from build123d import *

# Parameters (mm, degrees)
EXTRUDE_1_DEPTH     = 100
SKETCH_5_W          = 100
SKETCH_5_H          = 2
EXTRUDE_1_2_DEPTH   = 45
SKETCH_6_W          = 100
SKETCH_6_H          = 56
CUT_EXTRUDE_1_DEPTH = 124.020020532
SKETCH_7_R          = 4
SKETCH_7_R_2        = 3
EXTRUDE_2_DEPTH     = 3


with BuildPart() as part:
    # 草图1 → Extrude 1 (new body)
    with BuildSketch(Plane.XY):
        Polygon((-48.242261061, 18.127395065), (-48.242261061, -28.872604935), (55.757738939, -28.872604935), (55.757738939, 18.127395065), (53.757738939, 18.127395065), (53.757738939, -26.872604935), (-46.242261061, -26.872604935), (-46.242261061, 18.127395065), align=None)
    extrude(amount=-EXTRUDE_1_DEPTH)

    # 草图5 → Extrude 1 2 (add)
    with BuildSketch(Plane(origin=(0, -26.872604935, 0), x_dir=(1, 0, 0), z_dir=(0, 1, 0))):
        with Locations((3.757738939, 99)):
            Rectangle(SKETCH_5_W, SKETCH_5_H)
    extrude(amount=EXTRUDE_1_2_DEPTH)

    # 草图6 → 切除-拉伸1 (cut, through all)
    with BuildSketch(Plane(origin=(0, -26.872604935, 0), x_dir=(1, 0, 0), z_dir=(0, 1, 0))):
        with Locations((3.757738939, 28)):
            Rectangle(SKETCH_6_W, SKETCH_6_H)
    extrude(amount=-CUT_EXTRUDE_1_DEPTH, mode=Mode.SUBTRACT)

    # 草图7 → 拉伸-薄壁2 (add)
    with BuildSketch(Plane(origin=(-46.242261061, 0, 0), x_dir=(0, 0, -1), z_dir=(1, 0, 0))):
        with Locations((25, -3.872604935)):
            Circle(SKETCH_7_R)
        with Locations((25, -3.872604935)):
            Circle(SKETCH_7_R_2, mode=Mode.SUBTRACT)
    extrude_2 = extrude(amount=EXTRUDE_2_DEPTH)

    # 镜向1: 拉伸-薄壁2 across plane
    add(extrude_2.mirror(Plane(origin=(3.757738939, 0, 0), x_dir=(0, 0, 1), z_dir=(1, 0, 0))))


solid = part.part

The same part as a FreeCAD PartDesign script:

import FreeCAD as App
import Part
import Sketcher

V = App.Vector
Q = App.Units.Quantity

doc = App.newDocument("Part")
body = doc.addObject("PartDesign::Body", "Body")

# Sketch on XY plane
sketch1 = body.newObject("Sketcher::SketchObject", "Sketch")
sketch1.AttachmentSupport = (doc.getObject("XY_Plane"), [""])
sketch1.MapMode = "FlatFace"
sketch1.addGeometry([
    Part.LineSegment(V(-48.2, 18.1, 0), V(-48.2, -28.9, 0)),  # 0
    Part.LineSegment(V(-48.2, -28.9, 0), V(55.8, -28.9, 0)),  # 1
    Part.LineSegment(V(55.8, -28.9, 0), V(55.8, 18.1, 0)),  # 2
    Part.LineSegment(V(55.8, 18.1, 0), V(53.8, 18.1, 0)),  # 3
    Part.LineSegment(V(53.8, 18.1, 0), V(53.8, -26.9, 0)),  # 4
    Part.LineSegment(V(53.8, -26.9, 0), V(-46.2, -26.9, 0)),  # 5
    Part.LineSegment(V(-46.2, -26.9, 0), V(-46.2, 18.1, 0)),  # 6
    Part.LineSegment(V(-46.2, 18.1, 0), V(-48.2, 18.1, 0)),  # 7
], False)
sketch1.addConstraint([
    Sketcher.Constraint("Coincident", 0, 2, 1, 1),
    Sketcher.Constraint("Coincident", 1, 2, 2, 1),
    Sketcher.Constraint("Coincident", 2, 2, 3, 1),
    Sketcher.Constraint("Coincident", 3, 2, 4, 1),
    Sketcher.Constraint("Coincident", 4, 2, 5, 1),
    Sketcher.Constraint("Coincident", 5, 2, 6, 1),
    Sketcher.Constraint("Coincident", 6, 2, 7, 1),
    Sketcher.Constraint("Coincident", 7, 2, 0, 1),
    Sketcher.Constraint("Vertical", 0),
    Sketcher.Constraint("Horizontal", 1),
    Sketcher.Constraint("Vertical", 2),
    Sketcher.Constraint("Horizontal", 3),
    Sketcher.Constraint("Vertical", 4),
    Sketcher.Constraint("Horizontal", 5),
    Sketcher.Constraint("Vertical", 6),
    Sketcher.Constraint("Horizontal", 7),
    Sketcher.Constraint("Horizontal", 3, 2, 6, 2),
    Sketcher.Constraint("Equal", 3, 7),
    Sketcher.Constraint("DistanceX", 1, 1, 1, 2, Q("104 mm")),
    Sketcher.Constraint("DistanceX", 3, 2, 3, 1, Q("2 mm")),
    Sketcher.Constraint("DistanceY", 0, 2, 0, 1, Q("47 mm")),
    Sketcher.Constraint("DistanceY", 4, 2, 4, 1, Q("45 mm")),
    Sketcher.Constraint("DistanceX", 0, 2, -1, 1, Q("48.242261 mm")),
    Sketcher.Constraint("DistanceY", 0, 2, -1, 1, Q("28.872605 mm")),
])
pad1 = body.newObject("PartDesign::Pad", "Pad")
pad1.Profile = sketch1
pad1.Length = 100
pad1.Reversed = True

# Sketch on XZ plane
sketch2 = body.newObject("Sketcher::SketchObject", "Sketch001")
sketch2.AttachmentSupport = (doc.getObject("XZ_Plane"), [""])
sketch2.MapMode = "FlatFace"
sketch2.AttachmentOffset = App.Placement(V(0, 0, 26.872605), App.Rotation())
sketch2.addGeometry([
    Part.LineSegment(V(-46.2, -100, 0), V(-46.2, -98, 0)),
    Part.LineSegment(V(-46.2, -98, 0), V(53.8, -98, 0)),
    Part.LineSegment(V(53.8, -98, 0), V(53.8, -100, 0)),
    Part.LineSegment(V(53.8, -100, 0), V(-46.2, -100, 0)),
], False)
sketch2.addConstraint([
    Sketcher.Constraint("Coincident", 0, 2, 1, 1),
    Sketcher.Constraint("Coincident", 1, 2, 2, 1),
    Sketcher.Constraint("Coincident", 2, 2, 3, 1),
    Sketcher.Constraint("Coincident", 3, 2, 0, 1),
    Sketcher.Constraint("Vertical", 0),
    Sketcher.Constraint("Horizontal", 1),
    Sketcher.Constraint("Vertical", 2),
    Sketcher.Constraint("Horizontal", 3),
    Sketcher.Constraint("DistanceX", 1, 1, 1, 2, Q("100 mm")),
    Sketcher.Constraint("DistanceY", 0, 1, 0, 2, Q("2 mm")),
    Sketcher.Constraint("DistanceY", 0, 2, -1, 1, Q("98 mm")),
    Sketcher.Constraint("DistanceX", 0, 2, -1, 1, Q("46.242261 mm")),
])
pad2 = body.newObject("PartDesign::Pad", "Pad001")
pad2.Profile = sketch2
pad2.Length = 45
pad2.Reversed = True

# Sketch on XZ plane
sketch3 = body.newObject("Sketcher::SketchObject", "Sketch002")
sketch3.AttachmentSupport = (doc.getObject("XZ_Plane"), [""])
sketch3.MapMode = "FlatFace"
sketch3.AttachmentOffset = App.Placement(V(0, 0, 26.872605), App.Rotation())
sketch3.addGeometry([
    Part.LineSegment(V(-46, -56, 0), V(-46, 0, 0)),
    Part.LineSegment(V(-46, 0, 0), V(54, 0, 0)),
    Part.LineSegment(V(54, 0, 0), V(54, -56, 0)),
    Part.LineSegment(V(54, -56, 0), V(-46, -56, 0)),
], False)
sketch3.addConstraint([
    Sketcher.Constraint("Coincident", 0, 2, 1, 1),
    Sketcher.Constraint("Coincident", 1, 2, 2, 1),
    Sketcher.Constraint("Coincident", 2, 2, 3, 1),
    Sketcher.Constraint("Coincident", 3, 2, 0, 1),
    Sketcher.Constraint("Vertical", 0),
    Sketcher.Constraint("Horizontal", 1),
    Sketcher.Constraint("Vertical", 2),
    Sketcher.Constraint("Horizontal", 3),
    Sketcher.Constraint("PointOnObject", 0, 2, -1),
    Sketcher.Constraint("DistanceX", 1, 1, 1, 2, Q("100 mm")),
    Sketcher.Constraint("DistanceY", 0, 1, 0, 2, Q("56 mm")),
    Sketcher.Constraint("DistanceX", 0, 2, -1, 1, Q("46.242261 mm")),
])
pocket1 = body.newObject("PartDesign::Pocket", "Pocket")
pocket1.Profile = sketch3
pocket1.Type = "ThroughAll"
pocket1.Reversed = True

# Sketch on YZ plane
sketch4 = body.newObject("Sketcher::SketchObject", "Sketch003")
sketch4.AttachmentSupport = (doc.getObject("YZ_Plane"), [""])
sketch4.MapMode = "FlatFace"
sketch4.AttachmentOffset = App.Placement(V(0, 0, -46.242261), App.Rotation())
sketch4.addGeometry([
    Part.Circle(V(-3.9, -25, 0), V(0, 0, 1), 4),
    Part.Circle(V(-3.9, -25, 0), V(0, 0, 1), 3),
], False)
sketch4.addConstraint([
    Sketcher.Constraint("Coincident", 1, 3, 0, 3),
    Sketcher.Constraint("Diameter", 0, Q("8 mm")),
    Sketcher.Constraint("Diameter", 1, Q("6 mm")),
    Sketcher.Constraint("DistanceY", 0, 3, -1, 1, Q("25 mm")),
    Sketcher.Constraint("DistanceX", 0, 3, -1, 1, Q("3.872605 mm")),
])
pad3 = body.newObject("PartDesign::Pad", "Pad002")
pad3.Profile = sketch4
pad3.Length = 3
doc.recompute()

datumplane = body.newObject("PartDesign::Plane", "DatumPlane")
datumplane.AttachmentSupport = (doc.getObject("YZ_Plane"), [""])
datumplane.MapMode = "FlatFace"
datumplane.AttachmentOffset = App.Placement(V(0, 0, 3.757739), App.Rotation())
mirrored = body.newObject("PartDesign::Mirrored", "Mirrored")
mirrored.Originals = [pad3]
mirrored.MirrorPlane = (datumplane, [""])
body.Tip = mirrored

doc.recompute()
